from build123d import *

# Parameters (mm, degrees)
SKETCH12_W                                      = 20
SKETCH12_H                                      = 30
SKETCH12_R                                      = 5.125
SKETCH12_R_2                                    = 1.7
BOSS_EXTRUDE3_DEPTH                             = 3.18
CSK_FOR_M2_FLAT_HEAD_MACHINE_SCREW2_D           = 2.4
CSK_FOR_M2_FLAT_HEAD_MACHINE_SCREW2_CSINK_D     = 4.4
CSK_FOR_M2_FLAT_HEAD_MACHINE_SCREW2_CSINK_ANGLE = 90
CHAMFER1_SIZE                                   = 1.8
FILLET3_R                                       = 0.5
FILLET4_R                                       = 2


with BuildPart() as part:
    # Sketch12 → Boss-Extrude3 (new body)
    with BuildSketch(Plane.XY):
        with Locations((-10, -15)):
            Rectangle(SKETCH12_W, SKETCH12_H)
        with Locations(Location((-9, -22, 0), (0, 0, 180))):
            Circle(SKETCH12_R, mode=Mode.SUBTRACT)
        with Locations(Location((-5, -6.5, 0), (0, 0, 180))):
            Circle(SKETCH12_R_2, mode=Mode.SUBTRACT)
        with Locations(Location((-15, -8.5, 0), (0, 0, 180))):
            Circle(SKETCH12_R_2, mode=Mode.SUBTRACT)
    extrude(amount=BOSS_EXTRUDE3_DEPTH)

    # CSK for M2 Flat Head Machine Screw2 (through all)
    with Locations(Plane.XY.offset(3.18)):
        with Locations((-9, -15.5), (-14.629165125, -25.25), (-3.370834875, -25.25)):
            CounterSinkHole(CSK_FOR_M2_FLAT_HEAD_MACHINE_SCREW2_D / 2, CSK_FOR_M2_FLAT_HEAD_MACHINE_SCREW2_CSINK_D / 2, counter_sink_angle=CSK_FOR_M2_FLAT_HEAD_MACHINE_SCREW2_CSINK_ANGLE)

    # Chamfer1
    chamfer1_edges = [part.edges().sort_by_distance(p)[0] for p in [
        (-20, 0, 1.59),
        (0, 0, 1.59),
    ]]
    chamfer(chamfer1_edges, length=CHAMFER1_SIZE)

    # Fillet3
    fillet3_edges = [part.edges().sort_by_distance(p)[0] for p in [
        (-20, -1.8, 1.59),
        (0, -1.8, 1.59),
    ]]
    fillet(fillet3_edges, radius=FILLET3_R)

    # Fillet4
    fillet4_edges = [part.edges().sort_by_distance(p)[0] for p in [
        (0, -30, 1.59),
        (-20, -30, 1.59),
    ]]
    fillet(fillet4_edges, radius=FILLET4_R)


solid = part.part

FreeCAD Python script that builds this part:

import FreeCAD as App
import Part
import Sketcher
from FreeCAD import Vector


def edges_at(feature, points):
    """Names of the edges that pass closest to the given points."""
    edges = feature.Shape.Edges
    near = lambda p: min(range(len(edges)), key=lambda i: edges[i].distToShape(Part.Vertex(*p))[0])
    return sorted({f"Edge{near(p) + 1}" for p in points})


def add_polygon(sketch, points):
    """Adds a closed chain of lines whose ends are joined by coincident constraints."""
    first, n = sketch.GeometryCount, len(points)
    for a, b in zip(points, points[1:] + points[:1]):
        sketch.addGeometry(Part.LineSegment(App.Vector(*a, 0), App.Vector(*b, 0)), False)
    for i in range(n):
        sketch.addConstraint(Sketcher.Constraint("Coincident", first + i, 2, first + (i + 1) % n, 1))

doc = App.newDocument("Part")
body = doc.addObject("PartDesign::Body", "Body")

# Sketch on XY plane
sketch1 = body.newObject("Sketcher::SketchObject", "Sketch")
sketch1.AttachmentSupport = (doc.getObject("XY_Plane"), [""])
sketch1.MapMode = "FlatFace"
add_polygon(sketch1, [(-20, 0), (-20, -30), (0, -30), (0, 0)])  # lines 0-3
sketch1.addGeometry(Part.Circle(Vector(-9, -22, 0), Vector(0, 0, 1), 5.125), False)  # 4
sketch1.addGeometry(Part.Circle(Vector(-15, -8.5, 0), Vector(0, 0, 1), 1.7), False)  # 5
sketch1.addGeometry(Part.Circle(Vector(-5, -6.5, 0), Vector(0, 0, 1), 1.7), False)  # 6
sketch1.addConstraint([
    Sketcher.Constraint("Vertical", 0),
    Sketcher.Constraint("Horizontal", 1),
    Sketcher.Constraint("Vertical", 2),
    Sketcher.Constraint("Horizontal", 3),
    Sketcher.Constraint("Coincident", 2, 2, -1, 1),
    Sketcher.Constraint("Equal", 5, 6),
    Sketcher.Constraint("Diameter", 5, 3.4),
    Sketcher.Constraint("Diameter", 4, 10.25),
    Sketcher.Constraint("DistanceX", 1, 1, 1, 2, 20.0),
    Sketcher.Constraint("DistanceY", 0, 2, 0, 1, 30.0),
    Sketcher.Constraint("DistanceX", 4, 3, -1, 1, 9.0),
    Sketcher.Constraint("DistanceY", 4, 3, -1, 1, 22.0),
    Sketcher.Constraint("DistanceX", 5, 3, -1, 1, 15.0),
    Sketcher.Constraint("DistanceX", 6, 3, -1, 1, 5.0),
    Sketcher.Constraint("DistanceY", 5, 3, 6, 3, 2.0),
    Sketcher.Constraint("DistanceY", 5, 3, -1, 1, 8.5),
])
pad1 = body.newObject("PartDesign::Pad", "Pad")
pad1.Profile = sketch1
pad1.Length = 3.18

# Sketch on XY plane
sketch2 = body.newObject("Sketcher::SketchObject", "Sketch001")
sketch2.AttachmentSupport = (doc.getObject("XY_Plane"), [""])
sketch2.MapMode = "FlatFace"
sketch2.AttachmentOffset = App.Placement(Vector(0, 0, 3.18), App.Rotation())
sketch2.addGeometry([
    Part.Circle(Vector(-9, -15.5, 0), Vector(0, 0, 1), 1.2),
    Part.Circle(Vector(-14.629165, -25.25, 0), Vector(0, 0, 1), 1.2),
    Part.Circle(Vector(-3.370835, -25.25, 0), Vector(0, 0, 1), 1.2),
], False)
sketch2.addConstraint([
    Sketcher.Constraint("Equal", 0, 1),
    Sketcher.Constraint("Equal", 1, 2),
    Sketcher.Constraint("Horizontal", 1, 3, 2, 3),
    Sketcher.Constraint("Diameter", 0, 2.4),
    Sketcher.Constraint("DistanceX", 0, 3, -1, 1, 9.0),
    Sketcher.Constraint("DistanceY", 0, 3, -1, 1, 15.5),
    Sketcher.Constraint("DistanceY", 1, 3, -1, 1, 25.25),
    Sketcher.Constraint("DistanceX", 1, 3, 2, 3, 11.25833),
    Sketcher.Constraint("DistanceX", 1, 3, -1, 1, 14.629165),
])
doc.recompute()
hole = body.newObject("PartDesign::Hole", "Hole")
hole.Profile = sketch2
hole.ThreadType = "None"
hole.Diameter = 2.4
hole.DepthType = "ThroughAll"
hole.HoleCutType = "Countersink"
hole.HoleCutDiameter = 4.4
hole.HoleCutCountersinkAngle = 90
doc.recompute()

chamfer = body.newObject("PartDesign::Chamfer", "Chamfer")
chamfer.Base = (hole, edges_at(hole, [(-20, 0, 1.59), (0, 0, 1.59)]))
chamfer.Size = 1.8
doc.recompute()

fillet = body.newObject("PartDesign::Fillet", "Fillet")
fillet.Base = (chamfer, edges_at(chamfer, [(-20, -1.8, 1.59), (0, -1.8, 1.59)]))
fillet.Radius = 0.5
doc.recompute()

fillet2 = body.newObject("PartDesign::Fillet", "Fillet001")
fillet2.Base = (fillet, edges_at(fillet, [(0, -30, 1.59), (-20, -30, 1.59)]))
fillet2.Radius = 2

doc.recompute()
